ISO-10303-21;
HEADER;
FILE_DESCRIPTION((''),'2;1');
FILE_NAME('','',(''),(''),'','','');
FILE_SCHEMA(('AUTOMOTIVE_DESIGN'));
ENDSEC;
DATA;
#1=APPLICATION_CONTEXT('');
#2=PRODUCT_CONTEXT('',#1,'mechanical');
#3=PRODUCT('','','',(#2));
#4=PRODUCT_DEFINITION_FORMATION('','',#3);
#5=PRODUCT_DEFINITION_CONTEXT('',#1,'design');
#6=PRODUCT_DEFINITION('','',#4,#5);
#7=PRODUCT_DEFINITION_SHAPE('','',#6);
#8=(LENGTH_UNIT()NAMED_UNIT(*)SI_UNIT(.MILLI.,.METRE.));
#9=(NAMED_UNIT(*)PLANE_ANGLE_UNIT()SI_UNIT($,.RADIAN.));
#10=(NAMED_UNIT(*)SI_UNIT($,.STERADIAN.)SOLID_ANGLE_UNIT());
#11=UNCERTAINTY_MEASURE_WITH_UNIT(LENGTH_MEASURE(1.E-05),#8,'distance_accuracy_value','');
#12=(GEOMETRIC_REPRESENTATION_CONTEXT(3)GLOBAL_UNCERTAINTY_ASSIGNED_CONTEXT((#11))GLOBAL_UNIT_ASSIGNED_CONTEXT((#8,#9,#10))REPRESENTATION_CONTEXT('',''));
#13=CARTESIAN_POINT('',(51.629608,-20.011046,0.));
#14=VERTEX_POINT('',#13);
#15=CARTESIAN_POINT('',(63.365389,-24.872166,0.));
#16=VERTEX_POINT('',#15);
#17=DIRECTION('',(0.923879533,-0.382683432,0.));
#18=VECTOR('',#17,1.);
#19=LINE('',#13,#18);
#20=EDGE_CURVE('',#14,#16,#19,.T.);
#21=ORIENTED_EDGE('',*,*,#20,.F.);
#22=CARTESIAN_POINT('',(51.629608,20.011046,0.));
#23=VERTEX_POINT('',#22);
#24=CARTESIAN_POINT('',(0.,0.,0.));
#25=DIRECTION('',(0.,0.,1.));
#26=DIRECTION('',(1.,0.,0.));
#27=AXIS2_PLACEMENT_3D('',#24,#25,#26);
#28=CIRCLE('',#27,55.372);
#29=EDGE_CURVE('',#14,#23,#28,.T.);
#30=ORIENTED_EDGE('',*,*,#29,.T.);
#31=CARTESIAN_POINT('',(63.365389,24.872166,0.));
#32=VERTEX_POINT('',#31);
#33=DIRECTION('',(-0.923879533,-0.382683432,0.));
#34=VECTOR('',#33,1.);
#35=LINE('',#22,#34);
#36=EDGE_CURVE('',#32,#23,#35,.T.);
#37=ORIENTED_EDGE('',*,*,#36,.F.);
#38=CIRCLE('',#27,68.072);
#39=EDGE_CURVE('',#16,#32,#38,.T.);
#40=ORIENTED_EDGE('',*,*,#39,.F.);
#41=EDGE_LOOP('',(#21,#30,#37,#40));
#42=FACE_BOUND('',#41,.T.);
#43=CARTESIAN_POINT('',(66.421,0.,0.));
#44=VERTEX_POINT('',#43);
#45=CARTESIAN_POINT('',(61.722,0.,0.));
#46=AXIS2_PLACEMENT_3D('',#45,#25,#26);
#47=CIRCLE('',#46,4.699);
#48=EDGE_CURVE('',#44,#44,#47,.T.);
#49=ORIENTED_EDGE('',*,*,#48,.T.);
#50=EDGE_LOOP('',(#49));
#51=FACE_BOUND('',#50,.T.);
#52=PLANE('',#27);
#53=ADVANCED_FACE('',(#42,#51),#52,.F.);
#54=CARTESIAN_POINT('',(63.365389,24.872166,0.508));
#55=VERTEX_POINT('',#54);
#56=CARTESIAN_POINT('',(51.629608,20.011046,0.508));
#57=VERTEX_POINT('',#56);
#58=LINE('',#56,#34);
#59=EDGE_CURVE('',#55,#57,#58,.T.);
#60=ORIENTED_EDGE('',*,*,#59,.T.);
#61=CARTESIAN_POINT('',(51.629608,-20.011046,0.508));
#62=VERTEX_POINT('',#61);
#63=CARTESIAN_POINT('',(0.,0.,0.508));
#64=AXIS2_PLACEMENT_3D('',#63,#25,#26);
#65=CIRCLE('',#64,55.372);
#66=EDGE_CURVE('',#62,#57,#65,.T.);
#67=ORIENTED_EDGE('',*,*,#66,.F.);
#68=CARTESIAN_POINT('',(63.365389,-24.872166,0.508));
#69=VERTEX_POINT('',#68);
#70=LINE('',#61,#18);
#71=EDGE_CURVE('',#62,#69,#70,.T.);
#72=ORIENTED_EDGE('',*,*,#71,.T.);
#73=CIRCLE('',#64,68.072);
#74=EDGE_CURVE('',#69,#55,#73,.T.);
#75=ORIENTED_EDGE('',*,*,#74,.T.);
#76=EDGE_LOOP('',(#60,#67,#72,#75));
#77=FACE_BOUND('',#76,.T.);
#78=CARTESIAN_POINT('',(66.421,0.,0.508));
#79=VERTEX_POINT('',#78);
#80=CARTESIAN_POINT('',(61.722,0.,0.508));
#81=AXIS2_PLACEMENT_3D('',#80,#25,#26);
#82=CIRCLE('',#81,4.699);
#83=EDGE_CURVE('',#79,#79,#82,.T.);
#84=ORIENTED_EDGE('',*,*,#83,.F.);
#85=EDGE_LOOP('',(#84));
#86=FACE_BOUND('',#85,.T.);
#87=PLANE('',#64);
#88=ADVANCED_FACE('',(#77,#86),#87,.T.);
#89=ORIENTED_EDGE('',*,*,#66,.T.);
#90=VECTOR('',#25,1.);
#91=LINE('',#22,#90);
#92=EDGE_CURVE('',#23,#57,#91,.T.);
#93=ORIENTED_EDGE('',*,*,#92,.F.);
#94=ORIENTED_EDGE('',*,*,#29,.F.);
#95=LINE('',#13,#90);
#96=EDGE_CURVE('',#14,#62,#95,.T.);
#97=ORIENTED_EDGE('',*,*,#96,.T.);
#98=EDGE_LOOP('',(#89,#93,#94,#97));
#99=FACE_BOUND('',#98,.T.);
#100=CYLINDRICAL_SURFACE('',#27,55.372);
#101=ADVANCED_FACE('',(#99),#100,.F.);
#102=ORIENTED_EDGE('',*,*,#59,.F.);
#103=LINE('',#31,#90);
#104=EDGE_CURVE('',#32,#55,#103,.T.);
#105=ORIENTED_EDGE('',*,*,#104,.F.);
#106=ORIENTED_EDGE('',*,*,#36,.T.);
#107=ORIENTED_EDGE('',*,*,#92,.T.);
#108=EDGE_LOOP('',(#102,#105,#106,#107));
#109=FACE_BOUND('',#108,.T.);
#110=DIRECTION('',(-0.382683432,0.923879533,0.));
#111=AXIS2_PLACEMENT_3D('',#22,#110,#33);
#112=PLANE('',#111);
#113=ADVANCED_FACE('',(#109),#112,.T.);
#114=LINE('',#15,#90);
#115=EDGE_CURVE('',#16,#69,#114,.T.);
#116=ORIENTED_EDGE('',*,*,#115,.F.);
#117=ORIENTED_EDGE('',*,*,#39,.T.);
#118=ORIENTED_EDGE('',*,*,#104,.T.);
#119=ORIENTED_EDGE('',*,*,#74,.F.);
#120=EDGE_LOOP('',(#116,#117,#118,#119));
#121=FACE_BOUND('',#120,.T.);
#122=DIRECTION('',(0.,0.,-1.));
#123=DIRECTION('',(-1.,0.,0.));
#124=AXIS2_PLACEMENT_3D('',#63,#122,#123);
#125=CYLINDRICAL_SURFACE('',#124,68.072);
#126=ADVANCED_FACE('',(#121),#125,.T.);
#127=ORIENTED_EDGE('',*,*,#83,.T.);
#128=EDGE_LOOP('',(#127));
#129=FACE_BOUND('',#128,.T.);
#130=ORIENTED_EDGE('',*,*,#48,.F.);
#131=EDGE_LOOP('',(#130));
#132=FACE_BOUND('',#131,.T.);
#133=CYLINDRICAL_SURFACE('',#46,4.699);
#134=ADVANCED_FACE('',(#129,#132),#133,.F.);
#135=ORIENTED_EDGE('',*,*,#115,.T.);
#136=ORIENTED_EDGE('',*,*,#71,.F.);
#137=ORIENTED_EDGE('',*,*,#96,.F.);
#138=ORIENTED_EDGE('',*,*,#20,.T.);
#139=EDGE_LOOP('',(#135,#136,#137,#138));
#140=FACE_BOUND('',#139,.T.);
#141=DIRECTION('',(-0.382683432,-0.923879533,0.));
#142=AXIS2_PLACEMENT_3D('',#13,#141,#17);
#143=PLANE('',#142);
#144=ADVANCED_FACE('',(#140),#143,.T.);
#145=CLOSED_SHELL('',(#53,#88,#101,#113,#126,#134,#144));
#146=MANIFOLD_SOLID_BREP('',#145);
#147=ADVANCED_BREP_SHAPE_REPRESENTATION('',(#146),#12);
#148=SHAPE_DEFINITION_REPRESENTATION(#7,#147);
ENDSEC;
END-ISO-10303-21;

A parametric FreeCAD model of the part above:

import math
import FreeCAD as App
import Part
import Sketcher

V = App.Vector
Q = App.Units.Quantity

doc = App.newDocument("Part")
body = doc.addObject("PartDesign::Body", "Body")

# Sketch on XY plane
sketch1 = doc.addObject("Sketcher::SketchObject", "Sketch")
body.addObject(sketch1)
sketch1.AttachmentSupport = (doc.XY_Plane, [""])
sketch1.MapMode = "FlatFace"
sketch1.addGeometry(Part.Circle(V(0, 0, 0), V(0, 0, 1), 68), False)
sketch1.addConstraint(Sketcher.Constraint("Coincident", 0, 3, -1, 1))
sketch1.addConstraint(Sketcher.Constraint("Diameter", 0, Q("5.36 in")))
pad1 = doc.addObject("PartDesign::Pad", "Pad")
body.addObject(pad1)
pad1.Profile = sketch1
pad1.Length = Q("0.02 in")

# Sketch on XY plane
sketch2 = doc.addObject("Sketcher::SketchObject", "Sketch001")
body.addObject(sketch2)
sketch2.AttachmentSupport = (doc.XY_Plane, [""])
sketch2.MapMode = "FlatFace"
sketch2.AttachmentOffset = App.Placement(V(0, 0, 0.02 * 25.4), App.Rotation())
sketch2.addGeometry(Part.Circle(V(0, 0, 0), V(0, 0, 1), 55), False)
sketch2.addConstraint(Sketcher.Constraint("Coincident", 0, 3, -1, 1))
sketch2.addConstraint(Sketcher.Constraint("Diameter", 0, Q("4.36 in")))
pocket1 = doc.addObject("PartDesign::Pocket", "Pocket")
body.addObject(pocket1)
pocket1.Profile = sketch2
pocket1.Type = "ThroughAll"

# Sketch on XY plane
sketch3 = doc.addObject("Sketcher::SketchObject", "Sketch002")
body.addObject(sketch3)
sketch3.AttachmentSupport = (doc.XY_Plane, [""])
sketch3.MapMode = "FlatFace"
sketch3.AttachmentOffset = App.Placement(V(0, 0, 0.02 * 25.4), App.Rotation())
sketch3.addGeometry(Part.Circle(V(61.7, 0, 0), V(0, 0, 1), 4.7), False)
sketch3.addConstraint(Sketcher.Constraint("PointOnObject", 0, 3, -1))
sketch3.addConstraint(Sketcher.Constraint("Diameter", 0, Q("0.37 in")))
sketch3.addConstraint(Sketcher.Constraint("DistanceX", -1, 1, 0, 3, Q("2.43 in")))
pocket2 = doc.addObject("PartDesign::Pocket", "Pocket001")
body.addObject(pocket2)
pocket2.Profile = sketch3
pocket2.Type = "ThroughAll"

# Sketch on XY plane
sketch4 = doc.addObject("Sketcher::SketchObject", "Sketch003")
body.addObject(sketch4)
sketch4.AttachmentSupport = (doc.XY_Plane, [""])
sketch4.MapMode = "FlatFace"
sketch4.AttachmentOffset = App.Placement(V(0, 0, 0.02 * 25.4), App.Rotation())
sketch4.addGeometry(Part.LineSegment(V(-88, 88, 0), V(-88, -88, 0)), False)
sketch4.addGeometry(Part.LineSegment(V(-88, -88, 0), V(88, -88, 0)), False)
sketch4.addGeometry(Part.LineSegment(V(88, -88, 0), V(88, 88, 0)), False)
sketch4.addGeometry(Part.LineSegment(V(88, 88, 0), V(-88, 88, 0)), False)
sketch4.addGeometry(Part.LineSegment(V(63, -25, 0), V(52, -20, 0)), False)
sketch4.addGeometry(Part.ArcOfCircle(Part.Circle(V(0, 0, 0), V(0, 0, 1), 55), math.radians(-21), math.radians(21)), False)
sketch4.addGeometry(Part.LineSegment(V(52, 20, 0), V(63, 25, 0)), False)
sketch4.addGeometry(Part.ArcOfCircle(Part.Circle(V(0, 0, 0), V(0, 0, 1), 68), math.radians(-21), math.radians(21)), False)
sketch4.addConstraint(Sketcher.Constraint("Coincident", 0, 2, 1, 1))
sketch4.addConstraint(Sketcher.Constraint("Coincident", 1, 2, 2, 1))
sketch4.addConstraint(Sketcher.Constraint("Coincident", 2, 2, 3, 1))
sketch4.addConstraint(Sketcher.Constraint("Coincident", 3, 2, 0, 1))
sketch4.addConstraint(Sketcher.Constraint("Coincident", 4, 2, 5, 1))
sketch4.addConstraint(Sketcher.Constraint("Coincident", 5, 2, 6, 1))
sketch4.addConstraint(Sketcher.Constraint("Coincident", 6, 2, 7, 2))
sketch4.addConstraint(Sketcher.Constraint("Coincident", 7, 1, 4, 1))
sketch4.addConstraint(Sketcher.Constraint("Vertical", 0))
sketch4.addConstraint(Sketcher.Constraint("Horizontal", 1))
sketch4.addConstraint(Sketcher.Constraint("Vertical", 2))
sketch4.addConstraint(Sketcher.Constraint("Horizontal", 3))
sketch4.addConstraint(Sketcher.Constraint("Coincident", 5, 3, -1, 1))
sketch4.addConstraint(Sketcher.Constraint("Coincident", 7, 3, -1, 1))
sketch4.addConstraint(Sketcher.Constraint("Symmetric", 0, 2, 2, 2, -1, 1))
sketch4.addConstraint(Sketcher.Constraint("Vertical", 4, 2, 5, 2))
sketch4.addConstraint(Sketcher.Constraint("Vertical", 6, 2, 7, 1))
sketch4.addConstraint(Sketcher.Constraint("Equal", 3, 0))
sketch4.addConstraint(Sketcher.Constraint("Radius", 5, Q("2.18 in")))
sketch4.addConstraint(Sketcher.Constraint("Radius", 7, Q("2.68 in")))
sketch4.addConstraint(Sketcher.Constraint("Angle", 4, Q("157.5 deg")))
sketch4.addConstraint(Sketcher.Constraint("DistanceX", 1, 1, 1, 2, 176.652))
sketch4.addConstraint(Sketcher.Constraint("DistanceX", -1, 1, 4, 2, 51.629608))
pocket3 = doc.addObject("PartDesign::Pocket", "Pocket002")
body.addObject(pocket3)
pocket3.Profile = sketch4
pocket3.Type = "ThroughAll"

doc.recompute()
